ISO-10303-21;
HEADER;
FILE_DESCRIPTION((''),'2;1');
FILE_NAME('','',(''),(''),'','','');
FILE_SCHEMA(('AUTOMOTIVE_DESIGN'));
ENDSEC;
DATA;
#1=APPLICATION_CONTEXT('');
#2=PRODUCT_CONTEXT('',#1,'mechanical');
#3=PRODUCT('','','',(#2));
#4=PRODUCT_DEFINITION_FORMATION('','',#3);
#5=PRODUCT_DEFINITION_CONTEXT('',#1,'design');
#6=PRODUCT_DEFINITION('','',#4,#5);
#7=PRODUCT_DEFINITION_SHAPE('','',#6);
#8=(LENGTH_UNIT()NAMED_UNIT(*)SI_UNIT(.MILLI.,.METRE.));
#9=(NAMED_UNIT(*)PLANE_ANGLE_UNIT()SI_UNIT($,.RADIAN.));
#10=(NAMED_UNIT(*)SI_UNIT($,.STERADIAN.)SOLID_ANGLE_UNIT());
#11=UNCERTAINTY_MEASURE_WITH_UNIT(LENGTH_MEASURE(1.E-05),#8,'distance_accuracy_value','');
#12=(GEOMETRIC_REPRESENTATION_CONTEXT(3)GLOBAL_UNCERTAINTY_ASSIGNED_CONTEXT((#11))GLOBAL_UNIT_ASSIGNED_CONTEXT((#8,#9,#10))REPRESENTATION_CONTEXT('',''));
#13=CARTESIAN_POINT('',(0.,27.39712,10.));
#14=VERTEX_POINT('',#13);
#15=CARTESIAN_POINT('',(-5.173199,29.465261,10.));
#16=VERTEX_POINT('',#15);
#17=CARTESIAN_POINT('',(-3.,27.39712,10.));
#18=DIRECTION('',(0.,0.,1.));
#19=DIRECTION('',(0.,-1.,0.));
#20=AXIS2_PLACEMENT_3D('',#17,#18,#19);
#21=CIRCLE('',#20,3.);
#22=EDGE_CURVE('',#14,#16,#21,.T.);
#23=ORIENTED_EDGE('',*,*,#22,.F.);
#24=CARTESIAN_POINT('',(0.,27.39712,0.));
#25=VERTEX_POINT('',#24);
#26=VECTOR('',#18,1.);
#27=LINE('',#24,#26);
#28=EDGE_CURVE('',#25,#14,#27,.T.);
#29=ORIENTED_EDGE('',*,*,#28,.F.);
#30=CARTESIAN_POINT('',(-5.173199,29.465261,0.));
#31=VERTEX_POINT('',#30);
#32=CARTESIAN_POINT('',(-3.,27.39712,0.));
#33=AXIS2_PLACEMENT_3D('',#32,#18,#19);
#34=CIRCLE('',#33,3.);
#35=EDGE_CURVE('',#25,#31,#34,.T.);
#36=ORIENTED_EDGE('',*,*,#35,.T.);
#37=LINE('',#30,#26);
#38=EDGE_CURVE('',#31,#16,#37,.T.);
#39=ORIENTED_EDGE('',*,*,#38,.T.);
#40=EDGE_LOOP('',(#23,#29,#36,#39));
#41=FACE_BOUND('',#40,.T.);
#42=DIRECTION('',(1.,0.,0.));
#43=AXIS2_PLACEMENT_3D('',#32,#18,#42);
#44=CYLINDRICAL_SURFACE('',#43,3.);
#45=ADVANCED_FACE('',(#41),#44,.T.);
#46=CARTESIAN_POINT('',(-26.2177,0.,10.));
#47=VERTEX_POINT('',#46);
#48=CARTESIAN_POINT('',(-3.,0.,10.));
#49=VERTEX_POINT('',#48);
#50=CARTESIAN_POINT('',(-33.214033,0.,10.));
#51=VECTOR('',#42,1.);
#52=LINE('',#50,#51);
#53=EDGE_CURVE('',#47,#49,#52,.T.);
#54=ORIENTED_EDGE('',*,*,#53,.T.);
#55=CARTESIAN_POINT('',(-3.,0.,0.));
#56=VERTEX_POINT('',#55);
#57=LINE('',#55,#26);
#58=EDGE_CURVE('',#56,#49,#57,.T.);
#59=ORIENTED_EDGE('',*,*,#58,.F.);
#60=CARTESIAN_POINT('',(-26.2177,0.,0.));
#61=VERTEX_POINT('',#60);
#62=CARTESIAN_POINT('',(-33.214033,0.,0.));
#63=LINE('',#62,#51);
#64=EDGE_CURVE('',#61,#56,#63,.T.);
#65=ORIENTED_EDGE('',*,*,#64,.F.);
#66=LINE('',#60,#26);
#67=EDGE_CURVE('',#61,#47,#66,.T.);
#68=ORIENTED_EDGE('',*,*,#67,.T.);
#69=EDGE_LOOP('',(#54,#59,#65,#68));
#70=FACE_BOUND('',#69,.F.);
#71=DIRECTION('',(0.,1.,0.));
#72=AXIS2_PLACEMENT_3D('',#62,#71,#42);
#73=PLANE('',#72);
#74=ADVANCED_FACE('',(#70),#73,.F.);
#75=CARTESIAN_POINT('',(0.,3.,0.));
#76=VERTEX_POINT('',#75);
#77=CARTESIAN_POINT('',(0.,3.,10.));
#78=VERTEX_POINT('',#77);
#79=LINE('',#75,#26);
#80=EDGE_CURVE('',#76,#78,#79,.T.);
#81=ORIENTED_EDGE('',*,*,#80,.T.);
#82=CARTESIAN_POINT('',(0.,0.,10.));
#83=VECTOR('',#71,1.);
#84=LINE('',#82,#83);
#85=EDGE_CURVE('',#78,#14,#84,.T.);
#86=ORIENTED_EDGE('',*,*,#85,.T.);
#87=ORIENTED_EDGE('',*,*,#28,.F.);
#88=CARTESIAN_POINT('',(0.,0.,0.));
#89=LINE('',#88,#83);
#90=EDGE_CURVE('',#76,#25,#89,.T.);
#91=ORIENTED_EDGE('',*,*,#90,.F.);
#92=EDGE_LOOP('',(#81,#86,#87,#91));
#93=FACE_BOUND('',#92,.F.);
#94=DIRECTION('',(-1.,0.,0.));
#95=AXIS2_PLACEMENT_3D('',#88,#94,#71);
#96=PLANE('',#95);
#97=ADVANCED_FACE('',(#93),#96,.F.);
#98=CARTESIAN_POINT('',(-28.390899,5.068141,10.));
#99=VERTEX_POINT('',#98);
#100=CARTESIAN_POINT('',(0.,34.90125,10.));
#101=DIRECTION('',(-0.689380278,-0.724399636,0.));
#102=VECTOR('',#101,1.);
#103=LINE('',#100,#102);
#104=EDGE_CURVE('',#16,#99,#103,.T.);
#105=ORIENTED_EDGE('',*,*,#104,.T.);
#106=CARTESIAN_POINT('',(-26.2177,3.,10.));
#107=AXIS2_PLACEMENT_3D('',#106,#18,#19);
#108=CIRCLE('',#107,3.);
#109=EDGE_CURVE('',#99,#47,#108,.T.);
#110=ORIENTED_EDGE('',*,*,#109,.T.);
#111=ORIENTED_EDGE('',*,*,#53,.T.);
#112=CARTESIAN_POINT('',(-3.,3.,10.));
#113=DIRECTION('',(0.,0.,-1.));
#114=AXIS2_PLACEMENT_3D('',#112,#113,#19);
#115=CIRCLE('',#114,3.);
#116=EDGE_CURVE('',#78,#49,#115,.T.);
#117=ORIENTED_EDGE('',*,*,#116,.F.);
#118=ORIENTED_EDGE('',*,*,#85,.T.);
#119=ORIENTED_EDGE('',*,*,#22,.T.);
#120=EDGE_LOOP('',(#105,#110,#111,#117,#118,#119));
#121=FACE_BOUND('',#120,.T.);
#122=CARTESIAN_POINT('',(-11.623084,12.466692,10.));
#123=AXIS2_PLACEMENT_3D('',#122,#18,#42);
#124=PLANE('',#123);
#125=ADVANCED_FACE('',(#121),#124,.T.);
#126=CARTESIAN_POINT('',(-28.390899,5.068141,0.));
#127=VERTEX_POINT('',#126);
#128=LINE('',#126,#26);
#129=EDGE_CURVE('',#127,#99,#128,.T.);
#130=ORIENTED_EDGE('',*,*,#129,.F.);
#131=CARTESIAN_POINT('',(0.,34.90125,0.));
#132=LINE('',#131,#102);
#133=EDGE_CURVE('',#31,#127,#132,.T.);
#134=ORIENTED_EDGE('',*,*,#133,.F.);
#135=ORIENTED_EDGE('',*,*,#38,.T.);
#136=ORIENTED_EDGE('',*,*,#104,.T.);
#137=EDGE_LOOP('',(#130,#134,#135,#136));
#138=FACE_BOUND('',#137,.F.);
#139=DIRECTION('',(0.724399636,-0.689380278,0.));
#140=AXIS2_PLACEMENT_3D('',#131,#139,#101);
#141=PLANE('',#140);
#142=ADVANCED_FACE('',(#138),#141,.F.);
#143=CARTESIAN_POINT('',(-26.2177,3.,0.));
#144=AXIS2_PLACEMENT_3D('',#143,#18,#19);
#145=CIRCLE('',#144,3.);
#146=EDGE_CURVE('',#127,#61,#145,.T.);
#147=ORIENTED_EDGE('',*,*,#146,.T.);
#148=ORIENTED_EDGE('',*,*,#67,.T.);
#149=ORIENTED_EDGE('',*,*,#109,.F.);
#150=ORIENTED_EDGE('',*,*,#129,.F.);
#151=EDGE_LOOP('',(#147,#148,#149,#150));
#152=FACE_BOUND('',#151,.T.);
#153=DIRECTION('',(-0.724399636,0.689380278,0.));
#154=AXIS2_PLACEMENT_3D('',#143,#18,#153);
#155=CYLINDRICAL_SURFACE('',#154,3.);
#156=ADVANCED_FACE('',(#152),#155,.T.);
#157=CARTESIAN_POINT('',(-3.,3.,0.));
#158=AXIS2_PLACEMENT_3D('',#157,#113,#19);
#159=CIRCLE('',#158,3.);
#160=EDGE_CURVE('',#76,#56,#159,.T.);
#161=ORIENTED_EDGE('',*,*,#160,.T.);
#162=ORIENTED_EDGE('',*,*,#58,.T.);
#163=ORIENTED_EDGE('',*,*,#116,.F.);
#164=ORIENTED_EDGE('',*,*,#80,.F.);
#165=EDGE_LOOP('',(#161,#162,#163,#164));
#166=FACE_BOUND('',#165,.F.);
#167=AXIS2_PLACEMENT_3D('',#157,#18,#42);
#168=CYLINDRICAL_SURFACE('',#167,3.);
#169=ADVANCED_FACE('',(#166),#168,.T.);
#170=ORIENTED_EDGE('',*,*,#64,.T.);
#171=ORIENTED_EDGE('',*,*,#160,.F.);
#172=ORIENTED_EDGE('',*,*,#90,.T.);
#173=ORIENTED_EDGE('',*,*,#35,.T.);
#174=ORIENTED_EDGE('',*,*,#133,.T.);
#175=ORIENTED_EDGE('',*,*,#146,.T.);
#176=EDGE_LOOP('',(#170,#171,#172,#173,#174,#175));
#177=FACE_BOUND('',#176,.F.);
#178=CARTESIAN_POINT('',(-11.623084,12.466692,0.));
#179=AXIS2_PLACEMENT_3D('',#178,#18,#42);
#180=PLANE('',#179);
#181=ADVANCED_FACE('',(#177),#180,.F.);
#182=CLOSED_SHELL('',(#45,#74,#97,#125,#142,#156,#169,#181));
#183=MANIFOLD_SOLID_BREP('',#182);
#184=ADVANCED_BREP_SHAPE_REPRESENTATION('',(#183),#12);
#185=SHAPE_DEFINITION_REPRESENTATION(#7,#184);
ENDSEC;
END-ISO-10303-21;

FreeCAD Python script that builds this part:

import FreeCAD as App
import Part
import Sketcher
Q = App.Units.Quantity


def edges_at(feature, points):
    """Names of the edges that pass closest to the given points."""
    edges = feature.Shape.Edges
    near = lambda p: min(range(len(edges)), key=lambda i: edges[i].distToShape(Part.Vertex(*p))[0])
    return sorted({f"Edge{near(p) + 1}" for p in points})


def add_polygon(sketch, points):
    """Adds a closed chain of lines whose ends are joined by coincident constraints."""
    first, n = sketch.GeometryCount, len(points)
    for a, b in zip(points, points[1:] + points[:1]):
        sketch.addGeometry(Part.LineSegment(App.Vector(*a, 0), App.Vector(*b, 0)), False)
    for i in range(n):
        sketch.addConstraint(Sketcher.Constraint("Coincident", first + i, 2, first + (i + 1) % n, 1))

doc = App.newDocument("Part")
body = doc.addObject("PartDesign::Body", "Body")

sketch1 = body.newObject("Sketcher::SketchObject", "Sketch")
sketch1.AttachmentSupport = (doc.getObject("XY_Plane"), [""])
sketch1.MapMode = "FlatFace"
add_polygon(sketch1, [(0, 0), (0, 35), (-33, 0)])
sketch1.addConstraint(Sketcher.Constraint("Vertical", 0))
sketch1.addConstraint(Sketcher.Constraint("Horizontal", 2))
sketch1.addConstraint(Sketcher.Constraint("Coincident", 2, 2, -1, 1))
sketch1.addConstraint(Sketcher.Constraint("DistanceY", 0, 1, 0, 2, Q("34.90125 mm")))
sketch1.addConstraint(Sketcher.Constraint("DistanceX", 2, 1, 2, 2, Q("33.214033 mm")))
pad1 = body.newObject("PartDesign::Pad", "Pad")
pad1.Profile = sketch1
pad1.Length = 10
doc.recompute()

fillet = body.newObject("PartDesign::Fillet", "Fillet")
fillet.Base = (pad1, edges_at(pad1, [(0, 0, 5), (-33.214, 0, 5), (0, 34.901, 5)]))
fillet.Radius = 3

doc.recompute()
